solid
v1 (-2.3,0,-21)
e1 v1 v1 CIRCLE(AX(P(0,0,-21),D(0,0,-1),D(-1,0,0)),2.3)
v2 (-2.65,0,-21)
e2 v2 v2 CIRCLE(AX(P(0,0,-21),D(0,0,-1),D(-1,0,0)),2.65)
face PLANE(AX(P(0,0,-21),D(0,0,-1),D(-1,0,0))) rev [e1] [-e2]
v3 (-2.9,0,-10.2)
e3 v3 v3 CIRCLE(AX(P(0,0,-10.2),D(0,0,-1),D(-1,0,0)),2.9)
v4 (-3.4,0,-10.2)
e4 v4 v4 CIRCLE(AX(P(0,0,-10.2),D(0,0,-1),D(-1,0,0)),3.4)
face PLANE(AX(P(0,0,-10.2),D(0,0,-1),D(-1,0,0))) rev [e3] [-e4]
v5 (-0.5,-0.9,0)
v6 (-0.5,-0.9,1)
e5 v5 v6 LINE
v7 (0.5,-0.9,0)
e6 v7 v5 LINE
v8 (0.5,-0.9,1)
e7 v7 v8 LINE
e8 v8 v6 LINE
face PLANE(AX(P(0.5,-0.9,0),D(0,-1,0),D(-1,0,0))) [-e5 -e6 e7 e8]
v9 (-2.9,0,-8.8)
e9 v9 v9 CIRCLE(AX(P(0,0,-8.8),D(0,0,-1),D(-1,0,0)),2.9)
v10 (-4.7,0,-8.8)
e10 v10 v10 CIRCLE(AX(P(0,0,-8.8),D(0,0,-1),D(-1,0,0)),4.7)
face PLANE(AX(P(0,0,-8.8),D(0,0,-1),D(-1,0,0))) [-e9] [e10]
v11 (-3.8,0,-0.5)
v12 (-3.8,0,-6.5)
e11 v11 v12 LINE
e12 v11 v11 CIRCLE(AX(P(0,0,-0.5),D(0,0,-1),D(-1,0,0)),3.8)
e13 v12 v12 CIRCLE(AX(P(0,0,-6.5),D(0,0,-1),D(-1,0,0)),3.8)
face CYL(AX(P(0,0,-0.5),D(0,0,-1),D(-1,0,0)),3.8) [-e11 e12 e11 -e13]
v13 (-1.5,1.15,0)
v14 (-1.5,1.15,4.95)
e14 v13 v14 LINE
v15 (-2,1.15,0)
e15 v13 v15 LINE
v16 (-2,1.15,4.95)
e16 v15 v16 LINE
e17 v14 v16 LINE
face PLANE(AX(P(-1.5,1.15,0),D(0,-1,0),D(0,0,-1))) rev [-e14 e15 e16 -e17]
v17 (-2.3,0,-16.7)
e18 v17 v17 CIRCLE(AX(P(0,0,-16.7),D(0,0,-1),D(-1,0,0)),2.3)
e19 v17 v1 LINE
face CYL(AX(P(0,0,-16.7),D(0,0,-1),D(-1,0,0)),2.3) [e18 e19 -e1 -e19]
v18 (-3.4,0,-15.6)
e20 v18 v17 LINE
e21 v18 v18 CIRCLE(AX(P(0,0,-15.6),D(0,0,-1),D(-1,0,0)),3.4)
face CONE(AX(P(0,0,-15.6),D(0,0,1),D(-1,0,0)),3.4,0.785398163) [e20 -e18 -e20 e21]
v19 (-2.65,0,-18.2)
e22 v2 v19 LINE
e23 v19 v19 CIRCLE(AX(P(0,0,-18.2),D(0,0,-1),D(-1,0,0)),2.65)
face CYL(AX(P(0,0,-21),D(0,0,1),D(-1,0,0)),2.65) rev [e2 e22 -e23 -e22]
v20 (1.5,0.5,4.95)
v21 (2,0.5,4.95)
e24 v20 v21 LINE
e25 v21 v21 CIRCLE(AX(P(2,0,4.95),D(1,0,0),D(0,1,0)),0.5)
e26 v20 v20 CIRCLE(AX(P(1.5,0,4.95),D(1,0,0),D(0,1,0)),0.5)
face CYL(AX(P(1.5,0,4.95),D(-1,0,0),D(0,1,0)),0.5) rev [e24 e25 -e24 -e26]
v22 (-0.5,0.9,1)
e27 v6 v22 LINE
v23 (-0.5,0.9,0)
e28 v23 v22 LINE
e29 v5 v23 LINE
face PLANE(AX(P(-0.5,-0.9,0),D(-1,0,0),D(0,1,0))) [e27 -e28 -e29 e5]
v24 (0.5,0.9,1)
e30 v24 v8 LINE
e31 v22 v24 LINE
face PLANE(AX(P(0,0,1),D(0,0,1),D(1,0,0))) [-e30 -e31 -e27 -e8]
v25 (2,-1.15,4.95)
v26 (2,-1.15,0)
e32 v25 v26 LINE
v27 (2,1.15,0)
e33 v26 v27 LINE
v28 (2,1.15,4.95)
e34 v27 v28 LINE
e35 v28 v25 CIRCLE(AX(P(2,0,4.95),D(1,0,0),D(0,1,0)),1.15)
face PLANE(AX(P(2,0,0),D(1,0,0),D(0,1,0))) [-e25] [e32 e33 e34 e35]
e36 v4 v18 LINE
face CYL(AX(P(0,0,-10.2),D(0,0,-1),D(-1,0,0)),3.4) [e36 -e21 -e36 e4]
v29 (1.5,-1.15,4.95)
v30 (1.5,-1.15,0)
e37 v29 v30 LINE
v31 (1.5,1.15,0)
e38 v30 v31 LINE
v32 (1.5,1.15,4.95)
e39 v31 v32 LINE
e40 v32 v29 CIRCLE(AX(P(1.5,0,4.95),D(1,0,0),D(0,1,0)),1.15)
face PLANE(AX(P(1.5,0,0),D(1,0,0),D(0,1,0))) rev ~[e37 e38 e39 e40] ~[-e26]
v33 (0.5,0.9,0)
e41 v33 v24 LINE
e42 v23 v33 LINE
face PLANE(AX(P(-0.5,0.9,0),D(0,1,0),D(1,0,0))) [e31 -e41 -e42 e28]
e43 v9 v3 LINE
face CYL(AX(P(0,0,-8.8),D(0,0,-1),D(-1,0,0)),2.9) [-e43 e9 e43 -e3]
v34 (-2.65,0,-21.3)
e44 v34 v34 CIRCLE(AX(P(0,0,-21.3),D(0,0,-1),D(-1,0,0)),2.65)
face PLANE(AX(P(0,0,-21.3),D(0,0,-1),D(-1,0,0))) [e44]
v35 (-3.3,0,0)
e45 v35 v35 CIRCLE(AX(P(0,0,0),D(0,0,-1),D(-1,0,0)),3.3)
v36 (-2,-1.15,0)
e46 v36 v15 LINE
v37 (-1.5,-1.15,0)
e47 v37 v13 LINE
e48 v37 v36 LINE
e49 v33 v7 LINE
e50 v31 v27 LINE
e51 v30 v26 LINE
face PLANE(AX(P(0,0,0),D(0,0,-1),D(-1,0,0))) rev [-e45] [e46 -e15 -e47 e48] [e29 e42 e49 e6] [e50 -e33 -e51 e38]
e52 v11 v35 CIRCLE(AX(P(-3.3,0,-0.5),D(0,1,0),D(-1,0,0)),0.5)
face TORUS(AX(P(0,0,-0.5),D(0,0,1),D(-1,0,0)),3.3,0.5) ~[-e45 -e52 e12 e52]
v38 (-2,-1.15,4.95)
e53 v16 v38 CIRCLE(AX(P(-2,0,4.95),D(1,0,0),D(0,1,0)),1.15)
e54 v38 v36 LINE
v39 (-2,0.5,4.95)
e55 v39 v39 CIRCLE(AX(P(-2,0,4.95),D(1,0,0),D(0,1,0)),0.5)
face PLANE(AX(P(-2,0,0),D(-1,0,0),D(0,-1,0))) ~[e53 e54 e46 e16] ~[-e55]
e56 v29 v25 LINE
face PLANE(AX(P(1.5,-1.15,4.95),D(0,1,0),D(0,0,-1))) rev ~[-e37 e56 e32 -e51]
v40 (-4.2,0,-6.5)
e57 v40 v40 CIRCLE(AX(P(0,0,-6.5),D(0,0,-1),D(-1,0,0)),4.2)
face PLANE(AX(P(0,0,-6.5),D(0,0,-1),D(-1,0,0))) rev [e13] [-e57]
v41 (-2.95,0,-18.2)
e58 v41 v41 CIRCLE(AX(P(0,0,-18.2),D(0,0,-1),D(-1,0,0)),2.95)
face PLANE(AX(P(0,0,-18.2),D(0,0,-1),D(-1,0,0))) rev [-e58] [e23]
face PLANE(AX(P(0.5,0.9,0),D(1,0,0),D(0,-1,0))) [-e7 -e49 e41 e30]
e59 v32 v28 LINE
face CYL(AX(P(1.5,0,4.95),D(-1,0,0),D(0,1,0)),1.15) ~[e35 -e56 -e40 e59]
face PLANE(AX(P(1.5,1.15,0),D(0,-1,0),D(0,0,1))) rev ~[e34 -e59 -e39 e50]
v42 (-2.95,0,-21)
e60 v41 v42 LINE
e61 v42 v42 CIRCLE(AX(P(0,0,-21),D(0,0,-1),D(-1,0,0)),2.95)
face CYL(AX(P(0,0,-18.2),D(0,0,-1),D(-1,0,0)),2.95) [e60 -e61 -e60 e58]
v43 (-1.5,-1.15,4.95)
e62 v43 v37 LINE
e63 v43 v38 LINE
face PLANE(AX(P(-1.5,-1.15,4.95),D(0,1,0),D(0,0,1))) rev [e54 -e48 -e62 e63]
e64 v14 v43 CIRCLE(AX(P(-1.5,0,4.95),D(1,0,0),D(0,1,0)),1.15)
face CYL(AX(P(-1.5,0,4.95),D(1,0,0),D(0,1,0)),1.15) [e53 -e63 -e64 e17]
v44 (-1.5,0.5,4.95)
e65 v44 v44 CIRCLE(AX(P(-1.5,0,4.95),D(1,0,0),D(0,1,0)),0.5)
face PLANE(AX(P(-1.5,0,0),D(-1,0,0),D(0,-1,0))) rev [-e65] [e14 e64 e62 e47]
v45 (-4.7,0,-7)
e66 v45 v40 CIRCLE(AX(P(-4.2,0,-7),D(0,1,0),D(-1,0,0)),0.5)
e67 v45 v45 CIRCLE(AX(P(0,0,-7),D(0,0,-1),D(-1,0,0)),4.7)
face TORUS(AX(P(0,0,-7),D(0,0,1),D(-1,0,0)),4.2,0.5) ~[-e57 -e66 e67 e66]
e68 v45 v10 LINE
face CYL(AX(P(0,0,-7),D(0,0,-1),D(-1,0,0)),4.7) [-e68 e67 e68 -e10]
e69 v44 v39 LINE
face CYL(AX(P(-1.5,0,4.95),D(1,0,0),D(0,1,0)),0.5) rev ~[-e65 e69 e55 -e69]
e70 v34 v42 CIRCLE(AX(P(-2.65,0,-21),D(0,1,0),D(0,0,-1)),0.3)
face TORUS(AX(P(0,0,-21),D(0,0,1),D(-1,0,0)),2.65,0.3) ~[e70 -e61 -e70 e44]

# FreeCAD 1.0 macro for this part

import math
import FreeCAD as App
import Part
import Sketcher
from FreeCAD import Vector
Q = App.Units.Quantity

doc = App.newDocument("Part")
body = doc.addObject("PartDesign::Body", "Body")

# Sketch on XZ plane
sketch1 = body.newObject("Sketcher::SketchObject", "Sketch")
sketch1.AttachmentSupport = (doc.getObject("XZ_Plane"), [""])
sketch1.MapMode = "FlatFace"
sketch1.addGeometry(Part.LineSegment(Vector(-3.3, 0, 0), Vector(0, 0, 0)), False)
sketch1.addGeometry(Part.LineSegment(Vector(0, 0, 0), Vector(0, -21.3, 0)), False)
sketch1.addGeometry(Part.LineSegment(Vector(0, -21.3, 0), Vector(-2.65, -21.3, 0)), False)
sketch1.addGeometry(Part.ArcOfCircle(Part.Circle(Vector(-2.65, -21, 0), Vector(0, 0, 1), 0.3), math.radians(180), math.radians(270)), False)
sketch1.addGeometry(Part.LineSegment(Vector(-2.95, -21, 0), Vector(-2.95, -18.2, 0)), False)
sketch1.addGeometry(Part.LineSegment(Vector(-2.95, -18.2, 0), Vector(-2.65, -18.2, 0)), False)
sketch1.addGeometry(Part.LineSegment(Vector(-2.65, -18.2, 0), Vector(-2.65, -21, 0)), False)
sketch1.addGeometry(Part.LineSegment(Vector(-2.65, -21, 0), Vector(-2.3, -21, 0)), False)
sketch1.addGeometry(Part.LineSegment(Vector(-2.3, -21, 0), Vector(-2.3, -16.7, 0)), False)
sketch1.addGeometry(Part.LineSegment(Vector(-2.3, -16.7, 0), Vector(-3.4, -15.6, 0)), False)
sketch1.addGeometry(Part.LineSegment(Vector(-3.4, -15.6, 0), Vector(-3.4, -10.2, 0)), False)
sketch1.addGeometry(Part.LineSegment(Vector(-3.4, -10.2, 0), Vector(-2.9, -10.2, 0)), False)
sketch1.addGeometry(Part.LineSegment(Vector(-2.9, -10.2, 0), Vector(-2.9, -8.8, 0)), False)
sketch1.addGeometry(Part.LineSegment(Vector(-2.9, -8.8, 0), Vector(-4.7, -8.8, 0)), False)
sketch1.addGeometry(Part.LineSegment(Vector(-4.7, -8.8, 0), Vector(-4.7, -7, 0)), False)
sketch1.addGeometry(Part.ArcOfCircle(Part.Circle(Vector(-4.2, -7, 0), Vector(0, 0, 1), 0.5), math.radians(90), math.radians(180)), False)
sketch1.addGeometry(Part.LineSegment(Vector(-4.2, -6.5, 0), Vector(-3.8, -6.5, 0)), False)
sketch1.addGeometry(Part.LineSegment(Vector(-3.8, -6.5, 0), Vector(-3.8, -0.5, 0)), False)
sketch1.addGeometry(Part.ArcOfCircle(Part.Circle(Vector(-3.3, -0.5, 0), Vector(0, 0, 1), 0.5), math.radians(90), math.radians(180)), False)
sketch1.addConstraint(Sketcher.Constraint("Coincident", 0, 2, 1, 1))
sketch1.addConstraint(Sketcher.Constraint("Coincident", 1, 2, 2, 1))
sketch1.addConstraint(Sketcher.Constraint("Tangent", 2, 2, 3, 2))
sketch1.addConstraint(Sketcher.Constraint("Tangent", 3, 1, 4, 1))
sketch1.addConstraint(Sketcher.Constraint("Coincident", 4, 2, 5, 1))
sketch1.addConstraint(Sketcher.Constraint("Coincident", 5, 2, 6, 1))
sketch1.addConstraint(Sketcher.Constraint("Coincident", 6, 2, 7, 1))
sketch1.addConstraint(Sketcher.Constraint("Coincident", 7, 2, 8, 1))
sketch1.addConstraint(Sketcher.Constraint("Coincident", 8, 2, 9, 1))
sketch1.addConstraint(Sketcher.Constraint("Coincident", 9, 2, 10, 1))
sketch1.addConstraint(Sketcher.Constraint("Coincident", 10, 2, 11, 1))
sketch1.addConstraint(Sketcher.Constraint("Coincident", 11, 2, 12, 1))
sketch1.addConstraint(Sketcher.Constraint("Coincident", 12, 2, 13, 1))
sketch1.addConstraint(Sketcher.Constraint("Coincident", 13, 2, 14, 1))
sketch1.addConstraint(Sketcher.Constraint("Tangent", 14, 2, 15, 2))
sketch1.addConstraint(Sketcher.Constraint("Tangent", 15, 1, 16, 1))
sketch1.addConstraint(Sketcher.Constraint("Coincident", 16, 2, 17, 1))
sketch1.addConstraint(Sketcher.Constraint("Tangent", 17, 2, 18, 2))
sketch1.addConstraint(Sketcher.Constraint("Tangent", 18, 1, 0, 1))
sketch1.addConstraint(Sketcher.Constraint("Horizontal", 0))
sketch1.addConstraint(Sketcher.Constraint("Vertical", 1))
sketch1.addConstraint(Sketcher.Constraint("Horizontal", 2))
sketch1.addConstraint(Sketcher.Constraint("Vertical", 4))
sketch1.addConstraint(Sketcher.Constraint("Horizontal", 5))
sketch1.addConstraint(Sketcher.Constraint("Vertical", 6))
sketch1.addConstraint(Sketcher.Constraint("Horizontal", 7))
sketch1.addConstraint(Sketcher.Constraint("Vertical", 8))
sketch1.addConstraint(Sketcher.Constraint("Vertical", 10))
sketch1.addConstraint(Sketcher.Constraint("Horizontal", 11))
sketch1.addConstraint(Sketcher.Constraint("Vertical", 12))
sketch1.addConstraint(Sketcher.Constraint("Horizontal", 13))
sketch1.addConstraint(Sketcher.Constraint("Vertical", 14))
sketch1.addConstraint(Sketcher.Constraint("Horizontal", 16))
sketch1.addConstraint(Sketcher.Constraint("Vertical", 17))
sketch1.addConstraint(Sketcher.Constraint("Coincident", 0, 2, -1, 1))
sketch1.addConstraint(Sketcher.Constraint("Coincident", 6, 2, 3, 3))
sketch1.addConstraint(Sketcher.Constraint("Equal", 15, 18))
sketch1.addConstraint(Sketcher.Constraint("Equal", 13, 14))
sketch1.addConstraint(Sketcher.Constraint("Radius", 3, Q("0.3 mm")))
sketch1.addConstraint(Sketcher.Constraint("Radius", 15, Q("0.5 mm")))
sketch1.addConstraint(Sketcher.Constraint("Angle", 9, Q("135 deg")))
sketch1.addConstraint(Sketcher.Constraint("DistanceX", 11, 1, 11, 2, Q("0.5 mm")))
sketch1.addConstraint(Sketcher.Constraint("DistanceY", 1, 2, 1, 1, Q("21.3 mm")))
sketch1.addConstraint(Sketcher.Constraint("DistanceY", 10, 1, 10, 2, Q("5.4 mm")))
sketch1.addConstraint(Sketcher.Constraint("DistanceY", 12, 1, 12, 2, Q("1.4 mm")))
sketch1.addConstraint(Sketcher.Constraint("DistanceX", 7, 2, -1, 1, Q("2.3 mm")))
sketch1.addConstraint(Sketcher.Constraint("DistanceY", 12, 2, -1, 1, Q("8.8 mm")))
sketch1.addConstraint(Sketcher.Constraint("DistanceY", 2, 2, 4, 2, Q("3.1 mm")))
sketch1.addConstraint(Sketcher.Constraint("DistanceY", 13, 2, 15, 1, Q("2.3 mm")))
sketch1.addConstraint(Sketcher.Constraint("DistanceX", 0, 1, 0, 2, Q("3.3 mm")))
sketch1.addConstraint(Sketcher.Constraint("DistanceX", 16, 1, 16, 2, Q("0.4 mm")))
sketch1.addConstraint(Sketcher.Constraint("DistanceX", 2, 2, 2, 1, Q("2.65 mm")))
revolution = body.newObject("PartDesign::Revolution", "Revolution")
revolution.Profile = sketch1
revolution.ReferenceAxis = (sketch1, ["V_Axis"])
revolution.Angle = 360

# Sketch on YZ plane
sketch2 = body.newObject("Sketcher::SketchObject", "Sketch001")
sketch2.AttachmentSupport = (doc.getObject("YZ_Plane"), [""])
sketch2.MapMode = "FlatFace"
sketch2.AttachmentOffset = App.Placement(Vector(0, 0, 1.5), App.Rotation())
sketch2.addGeometry(Part.ArcOfCircle(Part.Circle(Vector(0, 5, 0), Vector(0, 0, 1), 1.1), math.radians(0), math.radians(180)), False)
sketch2.addGeometry(Part.LineSegment(Vector(-1.1, 5, 0), Vector(-1.1, 0, 0)), False)
sketch2.addGeometry(Part.LineSegment(Vector(-1.1, 0, 0), Vector(1.1, 0, 0)), False)
sketch2.addGeometry(Part.LineSegment(Vector(1.1, 0, 0), Vector(1.1, 5, 0)), False)
sketch2.addGeometry(Part.Circle(Vector(0, 5, 0), Vector(0, 0, 1), 0.5), False)
sketch2.addConstraint(Sketcher.Constraint("Tangent", 0, 2, 1, 1))
sketch2.addConstraint(Sketcher.Constraint("Coincident", 1, 2, 2, 1))
sketch2.addConstraint(Sketcher.Constraint("Coincident", 2, 2, 3, 1))
sketch2.addConstraint(Sketcher.Constraint("Tangent", 3, 2, 0, 1))
sketch2.addConstraint(Sketcher.Constraint("Vertical", 1))
sketch2.addConstraint(Sketcher.Constraint("Horizontal", 2))
sketch2.addConstraint(Sketcher.Constraint("Vertical", 3))
sketch2.addConstraint(Sketcher.Constraint("Coincident", 4, 3, 0, 3))
sketch2.addConstraint(Sketcher.Constraint("Symmetric", 1, 2, 2, 2, -1, 1))
sketch2.addConstraint(Sketcher.Constraint("Diameter", 4, Q("1 mm")))
sketch2.addConstraint(Sketcher.Constraint("Radius", 0, Q("1.15 mm")))
sketch2.addConstraint(Sketcher.Constraint("DistanceY", 1, 2, 1, 1, Q("4.95 mm")))
pad1 = body.newObject("PartDesign::Pad", "Pad")
pad1.Profile = sketch2
pad1.Length = 0.5
doc.recompute()

mirrored = body.newObject("PartDesign::Mirrored", "Mirrored")
mirrored.Originals = [pad1]
mirrored.MirrorPlane = (doc.getObject("YZ_Plane"), [""])
body.Tip = mirrored

# Sketch on XY plane
sketch3 = body.newObject("Sketcher::SketchObject", "Sketch002")
sketch3.AttachmentSupport = (doc.getObject("XY_Plane"), [""])
sketch3.MapMode = "FlatFace"
sketch3.addGeometry(Part.LineSegment(Vector(0.5, 0.9, 0), Vector(-0.5, 0.9, 0)), False)
sketch3.addGeometry(Part.LineSegment(Vector(-0.5, 0.9, 0), Vector(-0.5, -0.9, 0)), False)
sketch3.addGeometry(Part.LineSegment(Vector(-0.5, -0.9, 0), Vector(0.5, -0.9, 0)), False)
sketch3.addGeometry(Part.LineSegment(Vector(0.5, -0.9, 0), Vector(0.5, 0.9, 0)), False)
sketch3.addConstraint(Sketcher.Constraint("Coincident", 0, 2, 1, 1))
sketch3.addConstraint(Sketcher.Constraint("Coincident", 1, 2, 2, 1))
sketch3.addConstraint(Sketcher.Constraint("Coincident", 2, 2, 3, 1))
sketch3.addConstraint(Sketcher.Constraint("Coincident", 3, 2, 0, 1))
sketch3.addConstraint(Sketcher.Constraint("Horizontal", 0))
sketch3.addConstraint(Sketcher.Constraint("Vertical", 1))
sketch3.addConstraint(Sketcher.Constraint("Horizontal", 2))
sketch3.addConstraint(Sketcher.Constraint("Vertical", 3))
sketch3.addConstraint(Sketcher.Constraint("Symmetric", 0, 2, 2, 2, -1, 1))
sketch3.addConstraint(Sketcher.Constraint("DistanceX", 0, 2, 0, 1, Q("1 mm")))
sketch3.addConstraint(Sketcher.Constraint("DistanceY", 1, 2, 1, 1, Q("1.8 mm")))
pad2 = body.newObject("PartDesign::Pad", "Pad001")
pad2.Profile = sketch3
pad2.Length = 1

doc.recompute()
